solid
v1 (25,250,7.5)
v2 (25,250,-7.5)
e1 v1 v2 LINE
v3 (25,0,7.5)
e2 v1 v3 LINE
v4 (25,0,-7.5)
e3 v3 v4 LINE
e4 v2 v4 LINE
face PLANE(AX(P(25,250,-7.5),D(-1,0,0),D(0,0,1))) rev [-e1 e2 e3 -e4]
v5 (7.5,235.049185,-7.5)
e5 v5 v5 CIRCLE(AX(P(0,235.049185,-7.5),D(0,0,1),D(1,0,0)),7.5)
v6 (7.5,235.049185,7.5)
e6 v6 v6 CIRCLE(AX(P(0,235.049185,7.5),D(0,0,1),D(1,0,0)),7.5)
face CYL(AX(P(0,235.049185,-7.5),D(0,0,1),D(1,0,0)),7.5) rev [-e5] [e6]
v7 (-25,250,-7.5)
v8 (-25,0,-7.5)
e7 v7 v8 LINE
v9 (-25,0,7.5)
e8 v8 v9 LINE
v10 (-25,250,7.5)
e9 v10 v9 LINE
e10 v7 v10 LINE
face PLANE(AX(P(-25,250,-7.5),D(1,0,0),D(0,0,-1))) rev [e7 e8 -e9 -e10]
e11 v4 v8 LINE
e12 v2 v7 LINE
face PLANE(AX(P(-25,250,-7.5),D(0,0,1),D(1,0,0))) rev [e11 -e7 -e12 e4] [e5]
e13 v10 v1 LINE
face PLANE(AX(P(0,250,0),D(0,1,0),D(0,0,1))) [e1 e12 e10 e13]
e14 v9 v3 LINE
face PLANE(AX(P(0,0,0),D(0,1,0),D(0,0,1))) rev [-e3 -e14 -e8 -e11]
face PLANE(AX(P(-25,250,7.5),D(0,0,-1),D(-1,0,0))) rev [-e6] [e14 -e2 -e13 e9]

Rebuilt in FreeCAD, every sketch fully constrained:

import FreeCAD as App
import Part
import Sketcher
from FreeCAD import Vector
Q = App.Units.Quantity

doc = App.newDocument("Part")
params = doc.addObject("Spreadsheet::Sheet", "Params")
for row, (alias, value) in enumerate([
    ("sketch1_width", "50 mm"),
    ("sketch1_height", "15 mm"),
    ("pad1_length", "250 mm"),
    ("sketch2_diameter", "15 mm"),
], start=1):
    params.set(f"A{row}", alias)
    params.set(f"B{row}", "=" + value)
    params.setAlias(f"B{row}", alias)

body = doc.addObject("PartDesign::Body", "Body")

# Sketch on XZ plane
sketch1 = doc.addObject("Sketcher::SketchObject", "Sketch")
body.addObject(sketch1)
sketch1.AttachmentSupport = (doc.XZ_Plane, [""])
sketch1.MapMode = "FlatFace"
sketch1.addGeometry([
    Part.LineSegment(Vector(-25, -8, 0), Vector(-25, 8, 0)),
    Part.LineSegment(Vector(-25, 8, 0), Vector(25, 8, 0)),
    Part.LineSegment(Vector(25, 8, 0), Vector(25, -8, 0)),
    Part.LineSegment(Vector(25, -8, 0), Vector(-25, -8, 0)),
], False)
sketch1.addConstraint([
    Sketcher.Constraint("Coincident", 0, 2, 1, 1),
    Sketcher.Constraint("Coincident", 1, 2, 2, 1),
    Sketcher.Constraint("Coincident", 2, 2, 3, 1),
    Sketcher.Constraint("Coincident", 3, 2, 0, 1),
    Sketcher.Constraint("Vertical", 0),
    Sketcher.Constraint("Horizontal", 1),
    Sketcher.Constraint("Vertical", 2),
    Sketcher.Constraint("Horizontal", 3),
    Sketcher.Constraint("Symmetric", 0, 2, 2, 2, -1, 1),
    Sketcher.Constraint("DistanceX", 1, 1, 1, 2, Q("50 mm")),
    Sketcher.Constraint("DistanceY", 0, 1, 0, 2, Q("15 mm")),
])
sketch1.setExpression("Constraints[9]", "Params.sketch1_width")
sketch1.setExpression("Constraints[10]", "Params.sketch1_height")
pad1 = doc.addObject("PartDesign::Pad", "Pad")
body.addObject(pad1)
pad1.Profile = sketch1
pad1.setExpression("Length", "Params.pad1_length")
pad1.Reversed = True

# Sketch on XY plane
sketch2 = doc.addObject("Sketcher::SketchObject", "Sketch001")
body.addObject(sketch2)
sketch2.AttachmentSupport = (doc.XY_Plane, [""])
sketch2.MapMode = "FlatFace"
sketch2.AttachmentOffset = App.Placement(Vector(0, 0, 7.5), App.Rotation())
sketch2.addGeometry(Part.Circle(Vector(0, 235, 0), Vector(0, 0, 1), 8), False)
sketch2.addConstraint([
    Sketcher.Constraint("PointOnObject", 0, 3, -2),
    Sketcher.Constraint("Diameter", 0, Q("15 mm")),
    Sketcher.Constraint("DistanceY", -1, 1, 0, 3, Q("235.049185 mm")),
])
sketch2.setExpression("Constraints[1]", "Params.sketch2_diameter")
pocket1 = doc.addObject("PartDesign::Pocket", "Pocket")
body.addObject(pocket1)
pocket1.Profile = sketch2
pocket1.Type = "ThroughAll"

doc.recompute()
